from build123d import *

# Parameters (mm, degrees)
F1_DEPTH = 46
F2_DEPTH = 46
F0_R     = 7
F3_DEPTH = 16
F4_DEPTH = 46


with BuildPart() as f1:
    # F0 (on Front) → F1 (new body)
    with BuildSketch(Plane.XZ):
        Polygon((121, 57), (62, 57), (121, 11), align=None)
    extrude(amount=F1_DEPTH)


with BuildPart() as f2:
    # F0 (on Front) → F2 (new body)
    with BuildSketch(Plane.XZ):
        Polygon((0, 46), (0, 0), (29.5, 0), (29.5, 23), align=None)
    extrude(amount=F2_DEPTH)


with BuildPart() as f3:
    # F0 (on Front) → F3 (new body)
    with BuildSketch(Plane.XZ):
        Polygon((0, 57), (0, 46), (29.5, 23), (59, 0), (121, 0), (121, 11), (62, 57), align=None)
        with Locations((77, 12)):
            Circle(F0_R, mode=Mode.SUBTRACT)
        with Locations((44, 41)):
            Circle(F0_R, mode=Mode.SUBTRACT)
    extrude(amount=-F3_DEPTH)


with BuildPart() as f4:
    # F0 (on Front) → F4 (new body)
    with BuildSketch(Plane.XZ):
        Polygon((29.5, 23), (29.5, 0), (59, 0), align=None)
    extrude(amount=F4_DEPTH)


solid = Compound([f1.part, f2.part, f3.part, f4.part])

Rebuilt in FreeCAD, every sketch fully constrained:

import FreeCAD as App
import Part
import Sketcher

doc = App.newDocument("Part")
body = doc.addObject("PartDesign::Body", "Body")

sketch1 = body.newObject("Sketcher::SketchObject", "Sketch")
sketch1.AttachmentSupport = (doc.getObject("XZ_Plane"), [""])
sketch1.MapMode = "FlatFace"
sketch1.addGeometry(Part.LineSegment(App.Vector(121, 57, 0), App.Vector(62, 57, 0)), False)
sketch1.addGeometry(Part.LineSegment(App.Vector(62, 57, 0), App.Vector(121, 11, 0)), False)
sketch1.addGeometry(Part.LineSegment(App.Vector(121, 11, 0), App.Vector(121, 57, 0)), False)
sketch1.addConstraint(Sketcher.Constraint("Coincident", 0, 2, 1, 1))
sketch1.addConstraint(Sketcher.Constraint("Coincident", 1, 2, 2, 1))
sketch1.addConstraint(Sketcher.Constraint("Coincident", 2, 2, 0, 1))
sketch1.addConstraint(Sketcher.Constraint("Horizontal", 0))
sketch1.addConstraint(Sketcher.Constraint("Vertical", 2))
sketch1.addConstraint(Sketcher.Constraint("DistanceX", 0, 2, 0, 1, 59.0))
sketch1.addConstraint(Sketcher.Constraint("DistanceY", 2, 1, 2, 2, 46.0))
sketch1.addConstraint(Sketcher.Constraint("DistanceX", -1, 1, 0, 2, 62.0))
sketch1.addConstraint(Sketcher.Constraint("DistanceY", -1, 1, 0, 2, 57.0))
pad1 = body.newObject("PartDesign::Pad", "Pad")
pad1.Profile = sketch1
pad1.Length = 46
body2 = doc.addObject("PartDesign::Body", "Body001")

sketch2 = body2.newObject("Sketcher::SketchObject", "Sketch001")
sketch2.AttachmentSupport = (doc.getObject("XZ_Plane001"), [""])
sketch2.MapMode = "FlatFace"
sketch2.addGeometry(Part.LineSegment(App.Vector(0, 46, 0), App.Vector(0, 0, 0)), False)
sketch2.addGeometry(Part.LineSegment(App.Vector(0, 0, 0), App.Vector(30, 0, 0)), False)
sketch2.addGeometry(Part.LineSegment(App.Vector(30, 0, 0), App.Vector(30, 23, 0)), False)
sketch2.addGeometry(Part.LineSegment(App.Vector(30, 23, 0), App.Vector(0, 46, 0)), False)
sketch2.addConstraint(Sketcher.Constraint("Coincident", 0, 2, 1, 1))
sketch2.addConstraint(Sketcher.Constraint("Coincident", 1, 2, 2, 1))
sketch2.addConstraint(Sketcher.Constraint("Coincident", 2, 2, 3, 1))
sketch2.addConstraint(Sketcher.Constraint("Coincident", 3, 2, 0, 1))
sketch2.addConstraint(Sketcher.Constraint("Vertical", 0))
sketch2.addConstraint(Sketcher.Constraint("Horizontal", 1))
sketch2.addConstraint(Sketcher.Constraint("Vertical", 2))
sketch2.addConstraint(Sketcher.Constraint("Coincident", 0, 2, -1, 1))
sketch2.addConstraint(Sketcher.Constraint("DistanceY", 0, 2, 0, 1, 46.0))
sketch2.addConstraint(Sketcher.Constraint("DistanceY", 2, 1, 2, 2, 23.0))
sketch2.addConstraint(Sketcher.Constraint("DistanceX", 1, 1, 1, 2, 29.5))
pad2 = body2.newObject("PartDesign::Pad", "Pad001")
pad2.Profile = sketch2
pad2.Length = 46
body3 = doc.addObject("PartDesign::Body", "Body002")

sketch3 = body3.newObject("Sketcher::SketchObject", "Sketch002")
sketch3.AttachmentSupport = (doc.getObject("XZ_Plane002"), [""])
sketch3.MapMode = "FlatFace"
sketch3.addGeometry(Part.LineSegment(App.Vector(0, 57, 0), App.Vector(0, 46, 0)), False)
sketch3.addGeometry(Part.LineSegment(App.Vector(0, 46, 0), App.Vector(59, 0, 0)), False)
sketch3.addGeometry(Part.LineSegment(App.Vector(59, 0, 0), App.Vector(121, 0, 0)), False)
sketch3.addGeometry(Part.LineSegment(App.Vector(121, 0, 0), App.Vector(121, 11, 0)), False)
sketch3.addGeometry(Part.LineSegment(App.Vector(121, 11, 0), App.Vector(62, 57, 0)), False)
sketch3.addGeometry(Part.LineSegment(App.Vector(62, 57, 0), App.Vector(0, 57, 0)), False)
sketch3.addGeometry(Part.Circle(App.Vector(77, 12, 0), App.Vector(0, 0, 1), 7), False)
sketch3.addGeometry(Part.Circle(App.Vector(44, 41, 0), App.Vector(0, 0, 1), 7), False)
sketch3.addConstraint(Sketcher.Constraint("Coincident", 0, 2, 1, 1))
sketch3.addConstraint(Sketcher.Constraint("Coincident", 1, 2, 2, 1))
sketch3.addConstraint(Sketcher.Constraint("Coincident", 2, 2, 3, 1))
sketch3.addConstraint(Sketcher.Constraint("Coincident", 3, 2, 4, 1))
sketch3.addConstraint(Sketcher.Constraint("Coincident", 4, 2, 5, 1))
sketch3.addConstraint(Sketcher.Constraint("Coincident", 5, 2, 0, 1))
sketch3.addConstraint(Sketcher.Constraint("Vertical", 0))
sketch3.addConstraint(Sketcher.Constraint("Horizontal", 2))
sketch3.addConstraint(Sketcher.Constraint("Vertical", 3))
sketch3.addConstraint(Sketcher.Constraint("Horizontal", 5))
sketch3.addConstraint(Sketcher.Constraint("Equal", 6, 7))
sketch3.addConstraint(Sketcher.Constraint("PointOnObject", 0, 2, -2))
sketch3.addConstraint(Sketcher.Constraint("PointOnObject", 1, 2, -1))
sketch3.addConstraint(Sketcher.Constraint("Parallel", 1, 4))
sketch3.addConstraint(Sketcher.Constraint("Equal", 2, 5))
sketch3.addConstraint(Sketcher.Constraint("Diameter", 6, 14.0))
sketch3.addConstraint(Sketcher.Constraint("DistanceX", 2, 1, 2, 2, 62.0))
sketch3.addConstraint(Sketcher.Constraint("DistanceY", 0, 2, 0, 1, 11.0))
sketch3.addConstraint(Sketcher.Constraint("DistanceX", -1, 1, 6, 3, 77.0))
sketch3.addConstraint(Sketcher.Constraint("DistanceY", -1, 1, 6, 3, 12.0))
sketch3.addConstraint(Sketcher.Constraint("DistanceX", -1, 1, 7, 3, 44.0))
sketch3.addConstraint(Sketcher.Constraint("DistanceY", -1, 1, 7, 3, 41.0))
sketch3.addConstraint(Sketcher.Constraint("DistanceY", -1, 1, 0, 2, 46.0))
sketch3.addConstraint(Sketcher.Constraint("DistanceX", -1, 1, 1, 2, 59.0))
pad3 = body3.newObject("PartDesign::Pad", "Pad002")
pad3.Profile = sketch3
pad3.Length = 16
pad3.Reversed = True
body4 = doc.addObject("PartDesign::Body", "Body003")

sketch4 = body4.newObject("Sketcher::SketchObject", "Sketch003")
sketch4.AttachmentSupport = (doc.getObject("XZ_Plane003"), [""])
sketch4.MapMode = "FlatFace"
sketch4.addGeometry(Part.LineSegment(App.Vector(30, 23, 0), App.Vector(30, 0, 0)), False)
sketch4.addGeometry(Part.LineSegment(App.Vector(30, 0, 0), App.Vector(59, 0, 0)), False)
sketch4.addGeometry(Part.LineSegment(App.Vector(59, 0, 0), App.Vector(30, 23, 0)), False)
sketch4.addConstraint(Sketcher.Constraint("Coincident", 0, 2, 1, 1))
sketch4.addConstraint(Sketcher.Constraint("Coincident", 1, 2, 2, 1))
sketch4.addConstraint(Sketcher.Constraint("Coincident", 2, 2, 0, 1))
sketch4.addConstraint(Sketcher.Constraint("Vertical", 0))
sketch4.addConstraint(Sketcher.Constraint("Horizontal", 1))
sketch4.addConstraint(Sketcher.Constraint("PointOnObject", 0, 2, -1))
sketch4.addConstraint(Sketcher.Constraint("DistanceY", 0, 2, 0, 1, 23.0))
sketch4.addConstraint(Sketcher.Constraint("DistanceX", 1, 1, 1, 2, 29.5))
sketch4.addConstraint(Sketcher.Constraint("DistanceX", -1, 1, 1, 2, 59.0))
pad4 = body4.newObject("PartDesign::Pad", "Pad003")
pad4.Profile = sketch4
pad4.Length = 46

doc.recompute()
